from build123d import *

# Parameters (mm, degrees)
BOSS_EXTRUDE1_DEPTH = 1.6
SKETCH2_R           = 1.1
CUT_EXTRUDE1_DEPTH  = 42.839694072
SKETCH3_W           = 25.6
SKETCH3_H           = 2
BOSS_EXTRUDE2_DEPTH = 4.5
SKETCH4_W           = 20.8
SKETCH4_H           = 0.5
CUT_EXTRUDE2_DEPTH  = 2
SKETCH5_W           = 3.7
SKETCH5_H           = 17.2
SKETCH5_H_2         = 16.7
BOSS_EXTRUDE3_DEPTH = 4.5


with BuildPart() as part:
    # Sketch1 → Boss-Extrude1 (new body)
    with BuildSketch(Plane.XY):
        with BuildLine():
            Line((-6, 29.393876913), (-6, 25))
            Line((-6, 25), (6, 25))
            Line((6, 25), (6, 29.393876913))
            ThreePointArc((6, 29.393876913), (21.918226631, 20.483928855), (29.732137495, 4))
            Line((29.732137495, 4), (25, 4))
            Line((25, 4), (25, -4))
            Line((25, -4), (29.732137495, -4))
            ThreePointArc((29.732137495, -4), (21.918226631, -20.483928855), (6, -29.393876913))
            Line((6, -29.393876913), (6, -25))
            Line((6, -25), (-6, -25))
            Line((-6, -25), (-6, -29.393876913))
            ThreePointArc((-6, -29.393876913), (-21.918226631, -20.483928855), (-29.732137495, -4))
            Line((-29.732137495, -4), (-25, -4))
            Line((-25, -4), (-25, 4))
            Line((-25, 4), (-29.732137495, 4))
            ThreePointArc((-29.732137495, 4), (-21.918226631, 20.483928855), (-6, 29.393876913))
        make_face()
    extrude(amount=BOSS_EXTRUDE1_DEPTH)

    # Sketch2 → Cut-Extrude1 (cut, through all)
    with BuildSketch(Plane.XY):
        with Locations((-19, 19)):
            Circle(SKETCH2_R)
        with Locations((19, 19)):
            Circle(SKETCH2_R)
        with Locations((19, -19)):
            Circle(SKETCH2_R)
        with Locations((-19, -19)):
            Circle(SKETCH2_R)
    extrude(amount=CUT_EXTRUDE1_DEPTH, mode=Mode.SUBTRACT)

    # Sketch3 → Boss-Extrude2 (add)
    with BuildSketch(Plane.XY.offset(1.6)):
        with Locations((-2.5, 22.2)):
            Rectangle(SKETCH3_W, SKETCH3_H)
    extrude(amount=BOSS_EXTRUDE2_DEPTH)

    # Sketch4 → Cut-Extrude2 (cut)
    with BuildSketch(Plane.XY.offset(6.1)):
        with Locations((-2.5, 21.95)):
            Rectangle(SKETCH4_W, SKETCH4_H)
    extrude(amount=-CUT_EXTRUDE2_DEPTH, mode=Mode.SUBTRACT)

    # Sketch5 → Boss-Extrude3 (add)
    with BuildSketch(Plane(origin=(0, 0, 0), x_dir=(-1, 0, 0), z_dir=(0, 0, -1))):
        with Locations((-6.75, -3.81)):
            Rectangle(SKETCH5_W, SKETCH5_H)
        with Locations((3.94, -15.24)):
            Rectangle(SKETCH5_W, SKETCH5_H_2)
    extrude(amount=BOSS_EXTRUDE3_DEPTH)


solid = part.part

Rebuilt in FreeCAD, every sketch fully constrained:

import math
import FreeCAD as App
import Part
import Sketcher
Q = App.Units.Quantity

doc = App.newDocument("Part")
body = doc.addObject("PartDesign::Body", "Body")

sketch1 = body.newObject("Sketcher::SketchObject", "Sketch")
sketch1.AttachmentSupport = (doc.getObject("XY_Plane"), [""])
sketch1.MapMode = "FlatFace"
sketch1.addGeometry([
    Part.LineSegment(App.Vector(-6, 25, 0), App.Vector(-6, 29.393877, 0)),
    Part.ArcOfCircle(Part.Circle(App.Vector(0, 0, 0), App.Vector(0, 0, 1), 30), math.radians(101.536959), math.radians(172.337744)),
    Part.LineSegment(App.Vector(-29.732137, 4, 0), App.Vector(-25, 4, 0)),
    Part.LineSegment(App.Vector(-25, 4, 0), App.Vector(-25, -4, 0)),
    Part.LineSegment(App.Vector(-25, -4, 0), App.Vector(-29.732137, -4, 0)),
    Part.ArcOfCircle(Part.Circle(App.Vector(0, 0, 0), App.Vector(0, 0, 1), 30), math.radians(-172.337744), math.radians(-101.536959)),
    Part.LineSegment(App.Vector(-6, -29.393877, 0), App.Vector(-6, -25, 0)),
    Part.LineSegment(App.Vector(-6, -25, 0), App.Vector(6, -25, 0)),
    Part.LineSegment(App.Vector(6, -25, 0), App.Vector(6, -29.393877, 0)),
    Part.ArcOfCircle(Part.Circle(App.Vector(0, 0, 0), App.Vector(0, 0, 1), 30), math.radians(-78.463041), math.radians(-7.662256)),
    Part.LineSegment(App.Vector(29.732137, -4, 0), App.Vector(25, -4, 0)),
    Part.LineSegment(App.Vector(25, -4, 0), App.Vector(25, 4, 0)),
    Part.LineSegment(App.Vector(25, 4, 0), App.Vector(29.732137, 4, 0)),
    Part.ArcOfCircle(Part.Circle(App.Vector(0, 0, 0), App.Vector(0, 0, 1), 30), math.radians(7.662256), math.radians(78.463041)),
    Part.LineSegment(App.Vector(6, 29.393877, 0), App.Vector(6, 25, 0)),
    Part.LineSegment(App.Vector(6, 25, 0), App.Vector(-6, 25, 0)),
], False)
sketch1.addConstraint([
    Sketcher.Constraint("Coincident", 0, 2, 1, 1),
    Sketcher.Constraint("Coincident", 1, 2, 2, 1),
    Sketcher.Constraint("Coincident", 2, 2, 3, 1),
    Sketcher.Constraint("Coincident", 3, 2, 4, 1),
    Sketcher.Constraint("Coincident", 4, 2, 5, 1),
    Sketcher.Constraint("Coincident", 5, 2, 6, 1),
    Sketcher.Constraint("Coincident", 6, 2, 7, 1),
    Sketcher.Constraint("Coincident", 7, 2, 8, 1),
    Sketcher.Constraint("Coincident", 8, 2, 9, 1),
    Sketcher.Constraint("Coincident", 9, 2, 10, 1),
    Sketcher.Constraint("Coincident", 10, 2, 11, 1),
    Sketcher.Constraint("Coincident", 11, 2, 12, 1),
    Sketcher.Constraint("Coincident", 12, 2, 13, 1),
    Sketcher.Constraint("Coincident", 13, 2, 14, 1),
    Sketcher.Constraint("Coincident", 14, 2, 15, 1),
    Sketcher.Constraint("Coincident", 15, 2, 0, 1),
    Sketcher.Constraint("Vertical", 0),
    Sketcher.Constraint("Horizontal", 2),
    Sketcher.Constraint("Vertical", 3),
    Sketcher.Constraint("Horizontal", 4),
    Sketcher.Constraint("Vertical", 6),
    Sketcher.Constraint("Horizontal", 7),
    Sketcher.Constraint("Vertical", 8),
    Sketcher.Constraint("Horizontal", 10),
    Sketcher.Constraint("Vertical", 11),
    Sketcher.Constraint("Horizontal", 12),
    Sketcher.Constraint("Vertical", 14),
    Sketcher.Constraint("Horizontal", 15),
    Sketcher.Constraint("Coincident", 1, 3, -1, 1),
    Sketcher.Constraint("Coincident", 5, 3, -1, 1),
    Sketcher.Constraint("Coincident", 9, 3, -1, 1),
    Sketcher.Constraint("Coincident", 13, 3, -1, 1),
    Sketcher.Constraint("Equal", 1, 5),
    Sketcher.Constraint("Equal", 5, 9),
    Sketcher.Constraint("Equal", 9, 13),
    Sketcher.Constraint("Symmetric", 2, 2, 10, 2, -1, 1),
    Sketcher.Constraint("Symmetric", 6, 2, 14, 2, -1, 1),
    Sketcher.Constraint("Horizontal", 5, 2, 8, 2),
    Sketcher.Constraint("Horizontal", 4, 2, 9, 2),
    Sketcher.Constraint("Horizontal", 2, 2, 11, 2),
    Sketcher.Constraint("Horizontal", 0, 2, 13, 2),
    Sketcher.Constraint("Radius", 1, Q("30 mm")),
    Sketcher.Constraint("DistanceX", 7, 1, 7, 2, Q("12 mm")),
    Sketcher.Constraint("DistanceY", 3, 2, 3, 1, Q("8 mm")),
    Sketcher.Constraint("DistanceX", 2, 2, -1, 1, Q("25 mm")),
    Sketcher.Constraint("DistanceY", 6, 2, -1, 1, Q("25 mm")),
])
pad1 = body.newObject("PartDesign::Pad", "Pad")
pad1.Profile = sketch1
pad1.Length = 1.6

sketch2 = body.newObject("Sketcher::SketchObject", "Sketch001")
sketch2.AttachmentSupport = (doc.getObject("XY_Plane"), [""])
sketch2.MapMode = "FlatFace"
sketch2.addGeometry([
    Part.Circle(App.Vector(-19, 19, 0), App.Vector(0, 0, 1), 1.1),
    Part.Circle(App.Vector(19, 19, 0), App.Vector(0, 0, 1), 1.1),
    Part.Circle(App.Vector(19, -19, 0), App.Vector(0, 0, 1), 1.1),
    Part.Circle(App.Vector(-19, -19, 0), App.Vector(0, 0, 1), 1.1),
], False)
sketch2.addConstraint([
    Sketcher.Constraint("Equal", 0, 1),
    Sketcher.Constraint("Equal", 1, 2),
    Sketcher.Constraint("Equal", 2, 3),
    Sketcher.Constraint("Symmetric", 0, 3, 2, 3, -1, 1),
    Sketcher.Constraint("Symmetric", 1, 3, 3, 3, -1, 1),
    Sketcher.Constraint("Symmetric", 0, 3, 1, 3, -2),
    Sketcher.Constraint("Diameter", 0, Q("2.2 mm")),
    Sketcher.Constraint("DistanceX", 0, 3, -1, 1, Q("19 mm")),
    Sketcher.Constraint("DistanceY", -1, 1, 0, 3, Q("19 mm")),
])
pocket1 = body.newObject("PartDesign::Pocket", "Pocket")
pocket1.Profile = sketch2
pocket1.Type = "ThroughAll"
pocket1.Reversed = True

sketch3 = body.newObject("Sketcher::SketchObject", "Sketch002")
sketch3.AttachmentSupport = (doc.getObject("XY_Plane"), [""])
sketch3.MapMode = "FlatFace"
sketch3.AttachmentOffset = App.Placement(App.Vector(0, 0, 1.6), App.Rotation())
sketch3.addGeometry([
    Part.LineSegment(App.Vector(-15.3, 23.2, 0), App.Vector(-15.3, 21.2, 0)),
    Part.LineSegment(App.Vector(-15.3, 21.2, 0), App.Vector(10.3, 21.2, 0)),
    Part.LineSegment(App.Vector(10.3, 21.2, 0), App.Vector(10.3, 23.2, 0)),
    Part.LineSegment(App.Vector(10.3, 23.2, 0), App.Vector(-15.3, 23.2, 0)),
], False)
sketch3.addConstraint([
    Sketcher.Constraint("Coincident", 0, 2, 1, 1),
    Sketcher.Constraint("Coincident", 1, 2, 2, 1),
    Sketcher.Constraint("Coincident", 2, 2, 3, 1),
    Sketcher.Constraint("Coincident", 3, 2, 0, 1),
    Sketcher.Constraint("Vertical", 0),
    Sketcher.Constraint("Horizontal", 1),
    Sketcher.Constraint("Vertical", 2),
    Sketcher.Constraint("Horizontal", 3),
    Sketcher.Constraint("DistanceY", 0, 2, 0, 1, Q("2 mm")),
    Sketcher.Constraint("DistanceX", 1, 1, 1, 2, Q("25.6 mm")),
    Sketcher.Constraint("DistanceX", 0, 2, -1, 1, Q("15.3 mm")),
    Sketcher.Constraint("DistanceY", -1, 1, 0, 2, Q("21.2 mm")),
])
pad2 = body.newObject("PartDesign::Pad", "Pad001")
pad2.Profile = sketch3
pad2.Length = 4.5

sketch4 = body.newObject("Sketcher::SketchObject", "Sketch003")
sketch4.AttachmentSupport = (doc.getObject("XY_Plane"), [""])
sketch4.MapMode = "FlatFace"
sketch4.AttachmentOffset = App.Placement(App.Vector(0, 0, 6.1), App.Rotation())
sketch4.addGeometry([
    Part.LineSegment(App.Vector(-12.9, 22.2, 0), App.Vector(-12.9, 21.7, 0)),
    Part.LineSegment(App.Vector(-12.9, 21.7, 0), App.Vector(7.9, 21.7, 0)),
    Part.LineSegment(App.Vector(7.9, 21.7, 0), App.Vector(7.9, 22.2, 0)),
    Part.LineSegment(App.Vector(7.9, 22.2, 0), App.Vector(-12.9, 22.2, 0)),
], False)
sketch4.addConstraint([
    Sketcher.Constraint("Coincident", 0, 2, 1, 1),
    Sketcher.Constraint("Coincident", 1, 2, 2, 1),
    Sketcher.Constraint("Coincident", 2, 2, 3, 1),
    Sketcher.Constraint("Coincident", 3, 2, 0, 1),
    Sketcher.Constraint("Vertical", 0),
    Sketcher.Constraint("Horizontal", 1),
    Sketcher.Constraint("Vertical", 2),
    Sketcher.Constraint("Horizontal", 3),
    Sketcher.Constraint("DistanceX", 1, 1, 1, 2, Q("20.8 mm")),
    Sketcher.Constraint("DistanceY", 0, 2, 0, 1, Q("0.5 mm")),
    Sketcher.Constraint("DistanceX", 0, 2, -1, 1, Q("12.9 mm")),
    Sketcher.Constraint("DistanceY", -1, 1, 0, 2, Q("21.7 mm")),
])
pocket2 = body.newObject("PartDesign::Pocket", "Pocket001")
pocket2.Profile = sketch4
pocket2.Length = 2

sketch5 = body.newObject("Sketcher::SketchObject", "Sketch004")
sketch5.AttachmentSupport = (doc.getObject("XY_Plane"), [""])
sketch5.MapMode = "FlatFace"
sketch5.addGeometry([
    Part.LineSegment(App.Vector(8.6, 4.79, 0), App.Vector(8.6, -12.41, 0)),
    Part.LineSegment(App.Vector(8.6, -12.41, 0), App.Vector(4.9, -12.41, 0)),
    Part.LineSegment(App.Vector(4.9, -12.41, 0), App.Vector(4.9, 4.79, 0)),
    Part.LineSegment(App.Vector(4.9, 4.79, 0), App.Vector(8.6, 4.79, 0)),
    Part.LineSegment(App.Vector(-2.09, -6.89, 0), App.Vector(-2.09, -23.59, 0)),
    Part.LineSegment(App.Vector(-2.09, -23.59, 0), App.Vector(-5.79, -23.59, 0)),
    Part.LineSegment(App.Vector(-5.79, -23.59, 0), App.Vector(-5.79, -6.89, 0)),
    Part.LineSegment(App.Vector(-5.79, -6.89, 0), App.Vector(-2.09, -6.89, 0)),
], False)
sketch5.addConstraint([
    Sketcher.Constraint("Coincident", 0, 2, 1, 1),
    Sketcher.Constraint("Coincident", 1, 2, 2, 1),
    Sketcher.Constraint("Coincident", 2, 2, 3, 1),
    Sketcher.Constraint("Coincident", 3, 2, 0, 1),
    Sketcher.Constraint("Coincident", 4, 2, 5, 1),
    Sketcher.Constraint("Coincident", 5, 2, 6, 1),
    Sketcher.Constraint("Coincident", 6, 2, 7, 1),
    Sketcher.Constraint("Coincident", 7, 2, 4, 1),
    Sketcher.Constraint("Vertical", 0),
    Sketcher.Constraint("Horizontal", 1),
    Sketcher.Constraint("Vertical", 2),
    Sketcher.Constraint("Horizontal", 3),
    Sketcher.Constraint("Vertical", 4),
    Sketcher.Constraint("Horizontal", 5),
    Sketcher.Constraint("Vertical", 6),
    Sketcher.Constraint("Horizontal", 7),
    Sketcher.Constraint("Equal", 3, 5),
    Sketcher.Constraint("DistanceX", 1, 2, 1, 1, Q("3.7 mm")),
    Sketcher.Constraint("DistanceY", 0, 2, 0, 1, Q("17.2 mm")),
    Sketcher.Constraint("DistanceY", 4, 2, 4, 1, Q("16.7 mm")),
    Sketcher.Constraint("DistanceX", -1, 1, 0, 2, Q("8.6 mm")),
    Sketcher.Constraint("DistanceY", 0, 2, -1, 1, Q("12.41 mm")),
    Sketcher.Constraint("DistanceX", 4, 2, -1, 1, Q("2.09 mm")),
    Sketcher.Constraint("DistanceY", 4, 2, -1, 1, Q("23.59 mm")),
])
pad3 = body.newObject("PartDesign::Pad", "Pad002")
pad3.Profile = sketch5
pad3.Length = 4.5
pad3.Reversed = True

doc.recompute()
